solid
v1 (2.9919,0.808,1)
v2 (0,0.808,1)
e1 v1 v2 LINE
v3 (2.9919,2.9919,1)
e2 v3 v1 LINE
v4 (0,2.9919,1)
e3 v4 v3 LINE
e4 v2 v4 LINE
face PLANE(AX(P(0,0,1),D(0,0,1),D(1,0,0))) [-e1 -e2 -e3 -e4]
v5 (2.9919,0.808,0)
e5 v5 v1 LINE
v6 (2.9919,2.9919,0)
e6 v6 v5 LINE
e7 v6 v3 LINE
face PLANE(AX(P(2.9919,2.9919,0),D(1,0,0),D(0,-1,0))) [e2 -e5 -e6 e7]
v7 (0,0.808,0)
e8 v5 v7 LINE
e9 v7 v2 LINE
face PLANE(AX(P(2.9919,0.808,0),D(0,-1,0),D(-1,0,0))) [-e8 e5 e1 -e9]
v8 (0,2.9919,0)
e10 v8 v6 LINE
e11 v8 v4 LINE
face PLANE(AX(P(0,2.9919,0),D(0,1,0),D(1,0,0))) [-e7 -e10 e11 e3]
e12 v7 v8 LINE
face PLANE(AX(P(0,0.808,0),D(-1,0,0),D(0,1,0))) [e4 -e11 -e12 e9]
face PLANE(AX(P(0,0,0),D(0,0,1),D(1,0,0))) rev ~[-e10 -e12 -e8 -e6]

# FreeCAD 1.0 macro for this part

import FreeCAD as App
import Part
import Sketcher

V = App.Vector
Q = App.Units.Quantity

doc = App.newDocument("Part")
body = doc.addObject("PartDesign::Body", "Body")

# Sketch on XY plane
sketch1 = body.newObject("Sketcher::SketchObject", "Sketch")
sketch1.AttachmentSupport = (doc.getObject("XY_Plane"), [""])
sketch1.MapMode = "FlatFace"
sketch1.addGeometry([
    Part.LineSegment(V(3, 3, 0), V(0, 3, 0)),
    Part.LineSegment(V(0, 3, 0), V(0, 0.8, 0)),
    Part.LineSegment(V(0, 0.8, 0), V(3, 0.8, 0)),
    Part.LineSegment(V(3, 0.8, 0), V(3, 3, 0)),
], False)
sketch1.addConstraint([
    Sketcher.Constraint("Coincident", 0, 2, 1, 1),
    Sketcher.Constraint("Coincident", 1, 2, 2, 1),
    Sketcher.Constraint("Coincident", 2, 2, 3, 1),
    Sketcher.Constraint("Coincident", 3, 2, 0, 1),
    Sketcher.Constraint("Horizontal", 0),
    Sketcher.Constraint("Vertical", 1),
    Sketcher.Constraint("Horizontal", 2),
    Sketcher.Constraint("Vertical", 3),
    Sketcher.Constraint("PointOnObject", 0, 2, -2),
    Sketcher.Constraint("DistanceX", 0, 2, 0, 1, Q("2.992 mm")),
    Sketcher.Constraint("DistanceY", 1, 2, 1, 1, Q("2.184 mm")),
    Sketcher.Constraint("DistanceY", -1, 1, 0, 2, Q("2.992 mm")),
])
pad1 = body.newObject("PartDesign::Pad", "Pad")
pad1.Profile = sketch1
pad1.Length = 1

doc.recompute()
